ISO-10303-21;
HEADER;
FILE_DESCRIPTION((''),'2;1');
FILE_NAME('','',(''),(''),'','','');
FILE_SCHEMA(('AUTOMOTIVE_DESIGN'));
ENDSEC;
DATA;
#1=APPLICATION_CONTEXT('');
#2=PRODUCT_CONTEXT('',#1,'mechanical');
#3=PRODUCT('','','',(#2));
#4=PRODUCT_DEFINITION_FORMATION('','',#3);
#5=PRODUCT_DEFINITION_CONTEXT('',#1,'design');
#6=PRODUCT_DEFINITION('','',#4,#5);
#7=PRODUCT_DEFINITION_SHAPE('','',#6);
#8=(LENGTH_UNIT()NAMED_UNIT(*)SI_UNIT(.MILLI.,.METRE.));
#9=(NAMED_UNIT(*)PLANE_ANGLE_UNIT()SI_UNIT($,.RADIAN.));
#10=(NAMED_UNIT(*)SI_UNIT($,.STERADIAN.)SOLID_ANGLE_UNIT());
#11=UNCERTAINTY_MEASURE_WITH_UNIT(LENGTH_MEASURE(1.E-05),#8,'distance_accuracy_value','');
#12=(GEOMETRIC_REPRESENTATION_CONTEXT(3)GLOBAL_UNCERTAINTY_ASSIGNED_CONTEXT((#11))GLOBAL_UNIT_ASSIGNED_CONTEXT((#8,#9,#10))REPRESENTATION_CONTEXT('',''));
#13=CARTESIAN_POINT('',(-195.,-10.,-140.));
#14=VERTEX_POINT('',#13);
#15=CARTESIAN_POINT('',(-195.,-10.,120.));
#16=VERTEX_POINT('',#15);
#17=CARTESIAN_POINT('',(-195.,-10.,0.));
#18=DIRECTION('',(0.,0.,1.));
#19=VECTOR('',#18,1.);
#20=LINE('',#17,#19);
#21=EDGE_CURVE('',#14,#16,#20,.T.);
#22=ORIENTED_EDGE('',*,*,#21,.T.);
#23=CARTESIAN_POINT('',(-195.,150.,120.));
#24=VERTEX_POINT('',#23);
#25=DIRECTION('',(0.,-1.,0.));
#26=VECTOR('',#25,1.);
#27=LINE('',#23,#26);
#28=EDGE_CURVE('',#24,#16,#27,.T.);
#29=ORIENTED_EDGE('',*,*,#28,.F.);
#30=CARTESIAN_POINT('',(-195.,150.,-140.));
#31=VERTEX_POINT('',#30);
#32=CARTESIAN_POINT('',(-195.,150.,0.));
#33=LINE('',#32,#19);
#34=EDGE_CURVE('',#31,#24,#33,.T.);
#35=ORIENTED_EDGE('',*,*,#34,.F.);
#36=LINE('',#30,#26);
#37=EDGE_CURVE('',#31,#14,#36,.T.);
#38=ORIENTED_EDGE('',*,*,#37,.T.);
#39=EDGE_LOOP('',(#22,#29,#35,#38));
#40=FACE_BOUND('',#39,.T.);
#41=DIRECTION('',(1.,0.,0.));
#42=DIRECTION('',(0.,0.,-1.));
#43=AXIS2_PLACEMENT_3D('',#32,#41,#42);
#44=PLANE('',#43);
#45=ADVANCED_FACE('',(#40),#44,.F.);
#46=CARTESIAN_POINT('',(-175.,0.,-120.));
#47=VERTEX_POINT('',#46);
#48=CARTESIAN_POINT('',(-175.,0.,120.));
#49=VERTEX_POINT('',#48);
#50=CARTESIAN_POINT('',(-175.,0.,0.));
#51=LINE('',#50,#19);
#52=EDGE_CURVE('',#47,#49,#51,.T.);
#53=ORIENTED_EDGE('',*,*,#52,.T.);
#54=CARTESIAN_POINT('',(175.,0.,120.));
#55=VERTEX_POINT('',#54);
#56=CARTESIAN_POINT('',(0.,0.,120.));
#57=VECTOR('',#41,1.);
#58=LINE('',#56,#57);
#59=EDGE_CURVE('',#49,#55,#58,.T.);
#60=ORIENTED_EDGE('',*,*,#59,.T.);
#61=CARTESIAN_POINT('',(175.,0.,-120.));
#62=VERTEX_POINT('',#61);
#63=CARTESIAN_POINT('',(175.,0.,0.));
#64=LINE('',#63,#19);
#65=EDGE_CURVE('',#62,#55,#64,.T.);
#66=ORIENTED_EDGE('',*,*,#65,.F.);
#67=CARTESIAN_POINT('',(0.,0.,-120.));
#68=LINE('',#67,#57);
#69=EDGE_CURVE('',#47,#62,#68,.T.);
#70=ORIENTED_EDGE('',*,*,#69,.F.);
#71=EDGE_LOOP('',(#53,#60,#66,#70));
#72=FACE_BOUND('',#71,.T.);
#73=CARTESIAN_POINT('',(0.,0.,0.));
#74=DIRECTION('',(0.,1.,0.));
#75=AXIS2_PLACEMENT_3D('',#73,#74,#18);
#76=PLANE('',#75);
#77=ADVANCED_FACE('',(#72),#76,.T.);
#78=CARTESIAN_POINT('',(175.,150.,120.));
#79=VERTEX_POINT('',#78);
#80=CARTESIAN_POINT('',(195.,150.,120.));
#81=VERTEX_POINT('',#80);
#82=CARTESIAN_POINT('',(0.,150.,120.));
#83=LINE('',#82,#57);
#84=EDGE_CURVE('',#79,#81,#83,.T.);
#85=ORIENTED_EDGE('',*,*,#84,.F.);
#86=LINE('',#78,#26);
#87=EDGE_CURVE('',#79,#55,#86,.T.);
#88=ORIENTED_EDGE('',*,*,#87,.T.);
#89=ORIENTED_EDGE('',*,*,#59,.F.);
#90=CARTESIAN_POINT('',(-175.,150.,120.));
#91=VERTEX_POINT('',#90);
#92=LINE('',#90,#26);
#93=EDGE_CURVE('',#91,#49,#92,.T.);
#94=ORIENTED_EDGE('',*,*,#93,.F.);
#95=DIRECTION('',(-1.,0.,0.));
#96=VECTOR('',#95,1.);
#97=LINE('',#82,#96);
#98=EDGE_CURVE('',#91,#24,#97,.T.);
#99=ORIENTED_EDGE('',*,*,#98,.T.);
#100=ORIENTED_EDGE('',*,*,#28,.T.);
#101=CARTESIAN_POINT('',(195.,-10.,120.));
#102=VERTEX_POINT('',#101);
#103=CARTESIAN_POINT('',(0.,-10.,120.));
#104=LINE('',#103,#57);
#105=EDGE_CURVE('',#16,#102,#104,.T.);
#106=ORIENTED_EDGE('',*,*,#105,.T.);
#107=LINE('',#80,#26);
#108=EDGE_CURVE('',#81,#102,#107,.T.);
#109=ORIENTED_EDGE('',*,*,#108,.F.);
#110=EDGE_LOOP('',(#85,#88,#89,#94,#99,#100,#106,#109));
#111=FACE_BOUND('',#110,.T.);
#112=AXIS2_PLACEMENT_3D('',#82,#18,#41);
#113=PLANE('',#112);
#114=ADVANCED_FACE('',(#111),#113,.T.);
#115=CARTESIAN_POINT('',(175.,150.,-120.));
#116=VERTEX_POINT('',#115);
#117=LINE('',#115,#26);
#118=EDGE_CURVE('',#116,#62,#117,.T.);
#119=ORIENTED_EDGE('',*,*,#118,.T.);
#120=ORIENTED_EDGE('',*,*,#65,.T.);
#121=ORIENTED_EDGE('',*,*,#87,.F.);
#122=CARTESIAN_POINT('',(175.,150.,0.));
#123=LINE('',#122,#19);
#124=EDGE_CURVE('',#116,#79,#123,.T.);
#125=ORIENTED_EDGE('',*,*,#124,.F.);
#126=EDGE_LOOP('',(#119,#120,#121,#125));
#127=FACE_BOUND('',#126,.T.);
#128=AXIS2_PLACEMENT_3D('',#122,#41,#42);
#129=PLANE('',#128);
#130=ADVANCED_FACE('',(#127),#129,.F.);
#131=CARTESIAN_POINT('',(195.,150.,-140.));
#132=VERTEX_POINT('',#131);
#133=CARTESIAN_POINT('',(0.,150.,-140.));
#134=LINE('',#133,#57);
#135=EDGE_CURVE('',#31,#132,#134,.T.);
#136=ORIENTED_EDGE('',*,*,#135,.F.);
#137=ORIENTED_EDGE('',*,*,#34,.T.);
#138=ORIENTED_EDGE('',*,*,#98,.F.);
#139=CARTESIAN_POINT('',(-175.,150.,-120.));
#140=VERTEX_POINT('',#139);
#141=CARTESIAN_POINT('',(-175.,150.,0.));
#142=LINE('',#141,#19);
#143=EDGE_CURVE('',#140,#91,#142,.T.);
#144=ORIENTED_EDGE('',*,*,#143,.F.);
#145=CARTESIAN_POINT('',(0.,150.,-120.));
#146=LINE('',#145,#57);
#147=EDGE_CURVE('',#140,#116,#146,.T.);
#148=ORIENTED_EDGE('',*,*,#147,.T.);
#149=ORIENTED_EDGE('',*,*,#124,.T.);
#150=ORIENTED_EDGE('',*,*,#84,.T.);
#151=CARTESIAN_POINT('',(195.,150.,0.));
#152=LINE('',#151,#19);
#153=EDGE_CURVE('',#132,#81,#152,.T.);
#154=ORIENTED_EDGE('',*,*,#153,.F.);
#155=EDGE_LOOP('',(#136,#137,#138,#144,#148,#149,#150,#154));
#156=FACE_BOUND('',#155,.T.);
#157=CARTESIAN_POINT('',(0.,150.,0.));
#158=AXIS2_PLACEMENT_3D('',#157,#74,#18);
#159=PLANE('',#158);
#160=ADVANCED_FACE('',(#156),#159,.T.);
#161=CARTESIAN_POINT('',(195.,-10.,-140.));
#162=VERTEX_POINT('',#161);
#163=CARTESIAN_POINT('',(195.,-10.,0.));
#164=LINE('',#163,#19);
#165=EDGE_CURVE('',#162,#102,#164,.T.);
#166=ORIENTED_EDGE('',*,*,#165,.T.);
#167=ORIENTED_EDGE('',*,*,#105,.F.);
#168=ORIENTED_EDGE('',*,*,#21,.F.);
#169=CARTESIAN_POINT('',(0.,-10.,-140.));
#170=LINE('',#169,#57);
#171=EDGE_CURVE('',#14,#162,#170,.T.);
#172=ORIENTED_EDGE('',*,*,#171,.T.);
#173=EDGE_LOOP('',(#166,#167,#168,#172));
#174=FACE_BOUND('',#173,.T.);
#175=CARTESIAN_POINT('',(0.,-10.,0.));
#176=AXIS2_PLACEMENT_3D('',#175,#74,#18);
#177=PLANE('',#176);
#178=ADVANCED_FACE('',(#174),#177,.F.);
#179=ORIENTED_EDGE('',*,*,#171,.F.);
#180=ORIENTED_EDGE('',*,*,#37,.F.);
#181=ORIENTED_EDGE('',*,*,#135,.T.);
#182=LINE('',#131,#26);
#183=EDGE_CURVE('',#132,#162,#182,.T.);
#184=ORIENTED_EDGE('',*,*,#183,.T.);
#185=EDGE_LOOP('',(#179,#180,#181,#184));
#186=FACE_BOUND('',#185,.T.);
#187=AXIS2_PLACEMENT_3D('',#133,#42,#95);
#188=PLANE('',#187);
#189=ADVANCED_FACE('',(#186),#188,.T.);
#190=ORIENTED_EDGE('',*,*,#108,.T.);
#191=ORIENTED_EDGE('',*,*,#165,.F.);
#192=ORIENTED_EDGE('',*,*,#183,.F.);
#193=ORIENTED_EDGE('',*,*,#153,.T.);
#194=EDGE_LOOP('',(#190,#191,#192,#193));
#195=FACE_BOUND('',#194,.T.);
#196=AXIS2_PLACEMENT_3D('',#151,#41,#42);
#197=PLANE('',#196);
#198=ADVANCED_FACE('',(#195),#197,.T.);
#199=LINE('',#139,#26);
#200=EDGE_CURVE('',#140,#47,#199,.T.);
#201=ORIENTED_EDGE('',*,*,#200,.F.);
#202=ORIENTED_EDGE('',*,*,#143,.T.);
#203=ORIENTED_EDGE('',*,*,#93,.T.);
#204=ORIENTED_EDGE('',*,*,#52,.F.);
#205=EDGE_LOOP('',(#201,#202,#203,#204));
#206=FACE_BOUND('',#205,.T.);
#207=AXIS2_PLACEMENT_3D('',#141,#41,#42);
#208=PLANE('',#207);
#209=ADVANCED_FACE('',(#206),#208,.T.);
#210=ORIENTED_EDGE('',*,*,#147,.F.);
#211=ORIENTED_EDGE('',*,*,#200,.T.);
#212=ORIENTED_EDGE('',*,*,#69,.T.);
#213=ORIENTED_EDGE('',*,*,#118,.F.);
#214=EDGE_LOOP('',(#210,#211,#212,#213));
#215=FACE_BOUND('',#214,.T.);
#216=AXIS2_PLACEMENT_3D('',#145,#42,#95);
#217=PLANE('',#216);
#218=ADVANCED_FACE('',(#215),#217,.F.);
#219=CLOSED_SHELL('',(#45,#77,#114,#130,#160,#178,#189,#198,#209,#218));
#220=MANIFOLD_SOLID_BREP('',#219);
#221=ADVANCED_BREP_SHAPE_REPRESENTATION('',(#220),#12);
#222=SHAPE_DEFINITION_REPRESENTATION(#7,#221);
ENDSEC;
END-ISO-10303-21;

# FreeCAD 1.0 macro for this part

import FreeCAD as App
import Part
import Sketcher
Q = App.Units.Quantity

doc = App.newDocument("Part")
body = doc.addObject("PartDesign::Body", "Body")

sketch1 = body.newObject("Sketcher::SketchObject", "Sketch")
sketch1.AttachmentSupport = (doc.getObject("XZ_Plane"), [""])
sketch1.MapMode = "FlatFace"
sketch1.addGeometry([
    Part.LineSegment(App.Vector(175, -120, 0), App.Vector(175, 120, 0)),
    Part.LineSegment(App.Vector(175, 120, 0), App.Vector(195, 120, 0)),
    Part.LineSegment(App.Vector(195, 120, 0), App.Vector(195, -140, 0)),
    Part.LineSegment(App.Vector(195, -140, 0), App.Vector(-195, -140, 0)),
    Part.LineSegment(App.Vector(-195, -140, 0), App.Vector(-195, 120, 0)),
    Part.LineSegment(App.Vector(-195, 120, 0), App.Vector(-175, 120, 0)),
    Part.LineSegment(App.Vector(-175, 120, 0), App.Vector(-175, -120, 0)),
    Part.LineSegment(App.Vector(-175, -120, 0), App.Vector(175, -120, 0)),
], False)
sketch1.addConstraint([
    Sketcher.Constraint("Coincident", 0, 2, 1, 1),
    Sketcher.Constraint("Coincident", 1, 2, 2, 1),
    Sketcher.Constraint("Coincident", 2, 2, 3, 1),
    Sketcher.Constraint("Coincident", 3, 2, 4, 1),
    Sketcher.Constraint("Coincident", 4, 2, 5, 1),
    Sketcher.Constraint("Coincident", 5, 2, 6, 1),
    Sketcher.Constraint("Coincident", 6, 2, 7, 1),
    Sketcher.Constraint("Coincident", 7, 2, 0, 1),
    Sketcher.Constraint("Vertical", 0),
    Sketcher.Constraint("Horizontal", 1),
    Sketcher.Constraint("Vertical", 2),
    Sketcher.Constraint("Horizontal", 3),
    Sketcher.Constraint("Vertical", 4),
    Sketcher.Constraint("Horizontal", 5),
    Sketcher.Constraint("Vertical", 6),
    Sketcher.Constraint("Horizontal", 7),
    Sketcher.Constraint("Symmetric", 0, 2, 6, 2, -1, 1),
    Sketcher.Constraint("Symmetric", 1, 2, 4, 2, -2),
    Sketcher.Constraint("DistanceX", 1, 1, 1, 2, Q("20 mm")),
    Sketcher.Constraint("DistanceX", 3, 2, 3, 1, Q("390 mm")),
    Sketcher.Constraint("DistanceY", 0, 1, 0, 2, Q("240 mm")),
    Sketcher.Constraint("DistanceY", 2, 2, 2, 1, Q("260 mm")),
])
pad1 = body.newObject("PartDesign::Pad", "Pad")
pad1.Profile = sketch1
pad1.Length = 150
pad1.Reversed = True

sketch2 = body.newObject("Sketcher::SketchObject", "Sketch001")
sketch2.AttachmentSupport = (doc.getObject("XZ_Plane"), [""])
sketch2.MapMode = "FlatFace"
sketch2.addGeometry([
    Part.LineSegment(App.Vector(195, 120, 0), App.Vector(195, -140, 0)),
    Part.LineSegment(App.Vector(195, -140, 0), App.Vector(-195, -140, 0)),
    Part.LineSegment(App.Vector(-195, -140, 0), App.Vector(-195, 120, 0)),
    Part.LineSegment(App.Vector(-195, 120, 0), App.Vector(195, 120, 0)),
], False)
sketch2.addConstraint([
    Sketcher.Constraint("Coincident", 0, 2, 1, 1),
    Sketcher.Constraint("Coincident", 1, 2, 2, 1),
    Sketcher.Constraint("Coincident", 2, 2, 3, 1),
    Sketcher.Constraint("Coincident", 3, 2, 0, 1),
    Sketcher.Constraint("Vertical", 0),
    Sketcher.Constraint("Horizontal", 1),
    Sketcher.Constraint("Vertical", 2),
    Sketcher.Constraint("Horizontal", 3),
    Sketcher.Constraint("DistanceX", 1, 2, 1, 1, Q("390 mm")),
    Sketcher.Constraint("DistanceY", 0, 2, 0, 1, Q("260 mm")),
    Sketcher.Constraint("DistanceX", -1, 1, 0, 2, Q("195 mm")),
    Sketcher.Constraint("DistanceY", 0, 2, -1, 1, Q("140 mm")),
])
pad2 = body.newObject("PartDesign::Pad", "Pad001")
pad2.Profile = sketch2
pad2.Length = 10

doc.recompute()
